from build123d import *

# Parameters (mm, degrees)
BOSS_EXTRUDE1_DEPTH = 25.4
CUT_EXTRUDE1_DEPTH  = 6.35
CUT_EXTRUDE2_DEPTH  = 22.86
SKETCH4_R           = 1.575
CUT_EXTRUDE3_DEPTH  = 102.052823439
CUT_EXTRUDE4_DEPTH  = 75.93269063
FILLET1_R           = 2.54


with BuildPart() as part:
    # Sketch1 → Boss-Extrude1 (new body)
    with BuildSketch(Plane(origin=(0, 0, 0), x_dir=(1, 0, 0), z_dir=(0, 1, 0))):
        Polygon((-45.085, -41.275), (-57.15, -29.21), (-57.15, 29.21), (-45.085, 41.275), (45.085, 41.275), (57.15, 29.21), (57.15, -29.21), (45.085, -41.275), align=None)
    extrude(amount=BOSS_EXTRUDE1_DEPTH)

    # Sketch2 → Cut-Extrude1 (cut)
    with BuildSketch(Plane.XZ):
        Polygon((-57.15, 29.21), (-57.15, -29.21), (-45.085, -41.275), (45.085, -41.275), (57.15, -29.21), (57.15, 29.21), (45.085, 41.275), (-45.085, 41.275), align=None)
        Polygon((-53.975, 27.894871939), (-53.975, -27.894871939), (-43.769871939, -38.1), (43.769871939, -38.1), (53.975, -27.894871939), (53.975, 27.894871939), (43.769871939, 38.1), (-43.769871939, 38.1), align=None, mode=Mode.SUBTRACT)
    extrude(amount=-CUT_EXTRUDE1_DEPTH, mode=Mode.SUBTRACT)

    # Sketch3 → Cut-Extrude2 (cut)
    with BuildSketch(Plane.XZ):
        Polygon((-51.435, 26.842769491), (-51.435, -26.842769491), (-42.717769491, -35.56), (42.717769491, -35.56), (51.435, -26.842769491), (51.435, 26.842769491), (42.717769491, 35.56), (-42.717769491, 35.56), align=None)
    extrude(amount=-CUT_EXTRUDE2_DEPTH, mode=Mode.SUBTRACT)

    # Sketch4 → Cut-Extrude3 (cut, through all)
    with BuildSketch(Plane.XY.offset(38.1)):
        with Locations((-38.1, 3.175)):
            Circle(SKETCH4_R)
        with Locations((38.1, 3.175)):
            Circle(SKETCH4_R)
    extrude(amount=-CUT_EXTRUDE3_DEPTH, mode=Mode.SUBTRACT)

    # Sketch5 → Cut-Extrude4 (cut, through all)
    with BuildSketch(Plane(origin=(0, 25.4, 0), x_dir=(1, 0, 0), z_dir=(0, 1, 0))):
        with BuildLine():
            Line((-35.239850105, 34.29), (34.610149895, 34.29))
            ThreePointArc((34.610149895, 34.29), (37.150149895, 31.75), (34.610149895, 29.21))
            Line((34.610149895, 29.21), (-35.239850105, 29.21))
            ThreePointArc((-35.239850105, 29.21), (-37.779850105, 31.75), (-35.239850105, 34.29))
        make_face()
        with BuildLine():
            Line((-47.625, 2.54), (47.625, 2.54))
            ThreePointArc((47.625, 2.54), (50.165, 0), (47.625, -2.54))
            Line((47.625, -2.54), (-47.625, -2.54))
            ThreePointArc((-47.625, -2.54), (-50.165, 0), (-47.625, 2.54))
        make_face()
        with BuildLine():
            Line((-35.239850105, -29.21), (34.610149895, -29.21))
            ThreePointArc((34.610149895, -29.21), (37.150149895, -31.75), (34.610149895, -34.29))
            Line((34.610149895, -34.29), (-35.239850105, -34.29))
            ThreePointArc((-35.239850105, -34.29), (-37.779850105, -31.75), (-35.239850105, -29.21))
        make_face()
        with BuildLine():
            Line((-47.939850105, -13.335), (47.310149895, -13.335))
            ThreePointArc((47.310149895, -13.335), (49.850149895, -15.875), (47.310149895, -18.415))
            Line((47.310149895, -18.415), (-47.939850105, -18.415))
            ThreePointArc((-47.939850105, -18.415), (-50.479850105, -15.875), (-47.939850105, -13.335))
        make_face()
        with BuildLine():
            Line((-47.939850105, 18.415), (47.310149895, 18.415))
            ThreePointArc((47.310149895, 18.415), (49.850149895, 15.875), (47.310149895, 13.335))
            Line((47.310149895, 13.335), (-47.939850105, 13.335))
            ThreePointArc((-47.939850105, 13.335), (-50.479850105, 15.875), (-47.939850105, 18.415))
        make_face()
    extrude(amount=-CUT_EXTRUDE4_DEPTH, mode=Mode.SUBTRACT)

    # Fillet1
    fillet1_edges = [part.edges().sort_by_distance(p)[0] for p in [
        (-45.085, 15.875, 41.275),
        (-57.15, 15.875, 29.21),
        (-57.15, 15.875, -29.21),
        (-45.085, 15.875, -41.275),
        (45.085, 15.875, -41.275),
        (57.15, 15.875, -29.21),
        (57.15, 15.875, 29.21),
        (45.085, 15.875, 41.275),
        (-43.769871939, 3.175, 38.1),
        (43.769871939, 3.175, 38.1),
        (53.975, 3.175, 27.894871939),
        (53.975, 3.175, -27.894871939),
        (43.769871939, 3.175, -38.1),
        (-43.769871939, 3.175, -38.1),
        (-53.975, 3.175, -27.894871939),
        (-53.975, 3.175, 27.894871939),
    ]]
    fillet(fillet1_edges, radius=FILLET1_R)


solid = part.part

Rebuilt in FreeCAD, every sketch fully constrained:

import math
import FreeCAD as App
import Part
import Sketcher
Q = App.Units.Quantity


def edges_at(feature, points):
    """Names of the edges that pass closest to the given points."""
    edges = feature.Shape.Edges
    near = lambda p: min(range(len(edges)), key=lambda i: edges[i].distToShape(Part.Vertex(*p))[0])
    return sorted({f"Edge{near(p) + 1}" for p in points})


def add_polygon(sketch, points):
    """Adds a closed chain of lines whose ends are joined by coincident constraints."""
    first, n = sketch.GeometryCount, len(points)
    for a, b in zip(points, points[1:] + points[:1]):
        sketch.addGeometry(Part.LineSegment(App.Vector(*a, 0), App.Vector(*b, 0)), False)
    for i in range(n):
        sketch.addConstraint(Sketcher.Constraint("Coincident", first + i, 2, first + (i + 1) % n, 1))

doc = App.newDocument("Part")
body = doc.addObject("PartDesign::Body", "Body")

# Sketch on XZ plane
sketch1 = body.newObject("Sketcher::SketchObject", "Sketch")
sketch1.AttachmentSupport = (doc.getObject("XZ_Plane"), [""])
sketch1.MapMode = "FlatFace"
add_polygon(sketch1, [(-57.15, 29.21), (-45.085, 41.275), (45.085, 41.275), (57.15, 29.21), (57.15, -29.21), (45.085, -41.275), (-45.085, -41.275), (-57.15, -29.21)])  # lines 0-7
sketch1.addConstraint(Sketcher.Constraint("Horizontal", 1))
sketch1.addConstraint(Sketcher.Constraint("Vertical", 3))
sketch1.addConstraint(Sketcher.Constraint("Horizontal", 5))
sketch1.addConstraint(Sketcher.Constraint("Vertical", 7))
sketch1.addConstraint(Sketcher.Constraint("Symmetric", 0, 2, 4, 2, -1, 1))
sketch1.addConstraint(Sketcher.Constraint("Symmetric", 2, 2, 6, 2, -1, 1))
sketch1.addConstraint(Sketcher.Constraint("Perpendicular", 0, 2))
sketch1.addConstraint(Sketcher.Constraint("Perpendicular", 2, 4))
sketch1.addConstraint(Sketcher.Constraint("Perpendicular", 4, 6))
sketch1.addConstraint(Sketcher.Constraint("Horizontal", 3, 2, 6, 2))
sketch1.addConstraint(Sketcher.Constraint("Vertical", 1, 2, 4, 2))
sketch1.addConstraint(Sketcher.Constraint("DistanceY", 3, 2, 3, 1, Q("2.3 in")))
sketch1.addConstraint(Sketcher.Constraint("DistanceX", 1, 1, 1, 2, Q("3.55 in")))
sketch1.addConstraint(Sketcher.Constraint("DistanceX", 6, 2, 3, 2, Q("4.5 in")))
pad1 = body.newObject("PartDesign::Pad", "Pad")
pad1.Profile = sketch1
pad1.Length = Q("1 in")
pad1.Reversed = True

# Sketch on XZ plane
sketch2 = body.newObject("Sketcher::SketchObject", "Sketch001")
sketch2.AttachmentSupport = (doc.getObject("XZ_Plane"), [""])
sketch2.MapMode = "FlatFace"
add_polygon(sketch2, [(-57.15, 29.21), (-57.15, -29.21), (-45.085, -41.275), (45.085, -41.275), (57.15, -29.21), (57.15, 29.21), (45.085, 41.275), (-45.085, 41.275)])  # lines 0-7
add_polygon(sketch2, [(-53.975, -27.894872), (-53.975, 27.894872), (-43.769872, 38.1), (43.769872, 38.1), (53.975, 27.894872), (53.975, -27.894872), (43.769872, -38.1), (-43.769872, -38.1)])  # lines 8-15
sketch2.addConstraint(Sketcher.Constraint("Vertical", 0))
sketch2.addConstraint(Sketcher.Constraint("Horizontal", 2))
sketch2.addConstraint(Sketcher.Constraint("Vertical", 4))
sketch2.addConstraint(Sketcher.Constraint("Horizontal", 6))
sketch2.addConstraint(Sketcher.Constraint("Vertical", 8))
sketch2.addConstraint(Sketcher.Constraint("Horizontal", 10))
sketch2.addConstraint(Sketcher.Constraint("Vertical", 12))
sketch2.addConstraint(Sketcher.Constraint("Horizontal", 14))
sketch2.addConstraint(Sketcher.Constraint("Symmetric", 0, 2, 4, 2, -1, 1))
sketch2.addConstraint(Sketcher.Constraint("Symmetric", 1, 2, 5, 2, -1, 1))
sketch2.addConstraint(Sketcher.Constraint("Symmetric", 8, 2, 12, 2, -1, 1))
sketch2.addConstraint(Sketcher.Constraint("Symmetric", 9, 2, 13, 2, -1, 1))
sketch2.addConstraint(Sketcher.Constraint("Perpendicular", 1, 3))
sketch2.addConstraint(Sketcher.Constraint("Perpendicular", 5, 7))
sketch2.addConstraint(Sketcher.Constraint("Parallel", 7, 9))
sketch2.addConstraint(Sketcher.Constraint("Perpendicular", 9, 11))
sketch2.addConstraint(Sketcher.Constraint("Perpendicular", 13, 15))
sketch2.addConstraint(Sketcher.Constraint("Horizontal", 0, 2, 3, 2))
sketch2.addConstraint(Sketcher.Constraint("Horizontal", 4, 2, 7, 2))
sketch2.addConstraint(Sketcher.Constraint("Horizontal", 8, 2, 11, 2))
sketch2.addConstraint(Sketcher.Constraint("Horizontal", 12, 2, 15, 2))
sketch2.addConstraint(Sketcher.Constraint("Vertical", 2, 2, 5, 2))
sketch2.addConstraint(Sketcher.Constraint("DistanceY", 0, 2, 0, 1, Q("2.3 in")))
sketch2.addConstraint(Sketcher.Constraint("DistanceY", 14, 2, 9, 2, Q("3 in")))
sketch2.addConstraint(Sketcher.Constraint("DistanceX", 2, 1, 2, 2, Q("3.55 in")))
sketch2.addConstraint(Sketcher.Constraint("DistanceX", 0, 2, 3, 2, Q("4.5 in")))
sketch2.addConstraint(Sketcher.Constraint("DistanceX", 8, 2, 5, 2, Q("3.9 in")))
sketch2.addConstraint(Sketcher.Constraint("Distance", 9, Q("14.432231 mm")))
pocket1 = body.newObject("PartDesign::Pocket", "Pocket")
pocket1.Profile = sketch2
pocket1.Length = Q("0.25 in")

# Sketch on XZ plane
sketch3 = body.newObject("Sketcher::SketchObject", "Sketch002")
sketch3.AttachmentSupport = (doc.getObject("XZ_Plane"), [""])
sketch3.MapMode = "FlatFace"
add_polygon(sketch3, [(-51.435, 26.842769), (-51.435, -26.842769), (-42.717769, -35.56), (42.717769, -35.56), (51.435, -26.842769), (51.435, 26.842769), (42.717769, 35.56), (-42.717769, 35.56)])  # lines 0-7
sketch3.addConstraint(Sketcher.Constraint("Vertical", 0))
sketch3.addConstraint(Sketcher.Constraint("Horizontal", 2))
sketch3.addConstraint(Sketcher.Constraint("Vertical", 4))
sketch3.addConstraint(Sketcher.Constraint("Horizontal", 6))
sketch3.addConstraint(Sketcher.Constraint("Symmetric", 0, 2, 4, 2, -1, 1))
sketch3.addConstraint(Sketcher.Constraint("Symmetric", 1, 2, 5, 2, -1, 1))
sketch3.addConstraint(Sketcher.Constraint("Perpendicular", 1, 3))
sketch3.addConstraint(Sketcher.Constraint("Perpendicular", 5, 7))
sketch3.addConstraint(Sketcher.Constraint("Horizontal", 0, 2, 3, 2))
sketch3.addConstraint(Sketcher.Constraint("Horizontal", 4, 2, 7, 2))
sketch3.addConstraint(Sketcher.Constraint("Vertical", 2, 2, 5, 2))
sketch3.addConstraint(Sketcher.Constraint("DistanceY", 1, 2, -1, 1, Q("1.4 in")))
sketch3.addConstraint(Sketcher.Constraint("DistanceX", 0, 2, 3, 2, Q("4.05 in")))
sketch3.addConstraint(Sketcher.Constraint("DistanceX", 2, 1, 2, 2, Q("85.435539 mm")))
pocket2 = body.newObject("PartDesign::Pocket", "Pocket001")
pocket2.Profile = sketch3
pocket2.Length = Q("0.9 in")

# Sketch on XY plane
sketch4 = body.newObject("Sketcher::SketchObject", "Sketch003")
sketch4.AttachmentSupport = (doc.getObject("XY_Plane"), [""])
sketch4.MapMode = "FlatFace"
sketch4.AttachmentOffset = App.Placement(App.Vector(0, 0, 1.5 * 25.4), App.Rotation())
sketch4.addGeometry(Part.Circle(App.Vector(-38.1, 3.175, 0), App.Vector(0, 0, 1), 1.575), False)
sketch4.addGeometry(Part.Circle(App.Vector(38.1, 3.175, 0), App.Vector(0, 0, 1), 1.575), False)
sketch4.addConstraint(Sketcher.Constraint("Equal", 0, 1))
sketch4.addConstraint(Sketcher.Constraint("Symmetric", 0, 3, 1, 3, -2))
sketch4.addConstraint(Sketcher.Constraint("DistanceX", 0, 3, 1, 3, Q("3 in")))
sketch4.addConstraint(Sketcher.Constraint("Diameter", 0, Q("3.15 mm")))
sketch4.addConstraint(Sketcher.Constraint("DistanceY", -1, 1, 0, 3, Q("0.125 in")))
pocket3 = body.newObject("PartDesign::Pocket", "Pocket002")
pocket3.Profile = sketch4
pocket3.Type = "ThroughAll"

# Sketch on XZ plane
sketch5 = body.newObject("Sketcher::SketchObject", "Sketch004")
sketch5.AttachmentSupport = (doc.getObject("XZ_Plane"), [""])
sketch5.MapMode = "FlatFace"
sketch5.AttachmentOffset = App.Placement(App.Vector(0, 0, -1 * 25.4), App.Rotation())
sketch5.addGeometry(Part.LineSegment(App.Vector(34.61015, -34.29, 0), App.Vector(-35.23985, -34.29, 0)), False)
sketch5.addGeometry(Part.ArcOfCircle(Part.Circle(App.Vector(-35.23985, -31.75, 0), App.Vector(0, 0, 1), 2.54), math.radians(90), math.radians(270)), False)
sketch5.addGeometry(Part.LineSegment(App.Vector(-35.23985, -29.21, 0), App.Vector(34.61015, -29.21, 0)), False)
sketch5.addGeometry(Part.ArcOfCircle(Part.Circle(App.Vector(34.61015, -31.75, 0), App.Vector(0, 0, 1), 2.54), math.radians(-90), math.radians(90)), False)
sketch5.addGeometry(Part.LineSegment(App.Vector(47.625, -2.54, 0), App.Vector(-47.625, -2.54, 0)), False)
sketch5.addGeometry(Part.ArcOfCircle(Part.Circle(App.Vector(-47.625, 0, 0), App.Vector(0, 0, 1), 2.54), math.radians(90), math.radians(270)), False)
sketch5.addGeometry(Part.LineSegment(App.Vector(-47.625, 2.54, 0), App.Vector(47.625, 2.54, 0)), False)
sketch5.addGeometry(Part.ArcOfCircle(Part.Circle(App.Vector(47.625, 0, 0), App.Vector(0, 0, 1), 2.54), math.radians(-90), math.radians(90)), False)
sketch5.addGeometry(Part.LineSegment(App.Vector(34.61015, 29.21, 0), App.Vector(-35.23985, 29.21, 0)), False)
sketch5.addGeometry(Part.ArcOfCircle(Part.Circle(App.Vector(-35.23985, 31.75, 0), App.Vector(0, 0, 1), 2.54), math.radians(90), math.radians(270)), False)
sketch5.addGeometry(Part.LineSegment(App.Vector(-35.23985, 34.29, 0), App.Vector(34.61015, 34.29, 0)), False)
sketch5.addGeometry(Part.ArcOfCircle(Part.Circle(App.Vector(34.61015, 31.75, 0), App.Vector(0, 0, 1), 2.54), math.radians(-90), math.radians(90)), False)
sketch5.addGeometry(Part.LineSegment(App.Vector(47.31015, 13.335, 0), App.Vector(-47.93985, 13.335, 0)), False)
sketch5.addGeometry(Part.ArcOfCircle(Part.Circle(App.Vector(-47.93985, 15.875, 0), App.Vector(0, 0, 1), 2.54), math.radians(90), math.radians(270)), False)
sketch5.addGeometry(Part.LineSegment(App.Vector(-47.93985, 18.415, 0), App.Vector(47.31015, 18.415, 0)), False)
sketch5.addGeometry(Part.ArcOfCircle(Part.Circle(App.Vector(47.31015, 15.875, 0), App.Vector(0, 0, 1), 2.54), math.radians(-90), math.radians(90)), False)
sketch5.addGeometry(Part.LineSegment(App.Vector(47.31015, -18.415, 0), App.Vector(-47.93985, -18.415, 0)), False)
sketch5.addGeometry(Part.ArcOfCircle(Part.Circle(App.Vector(-47.93985, -15.875, 0), App.Vector(0, 0, 1), 2.54), math.radians(90), math.radians(270)), False)
sketch5.addGeometry(Part.LineSegment(App.Vector(-47.93985, -13.335, 0), App.Vector(47.31015, -13.335, 0)), False)
sketch5.addGeometry(Part.ArcOfCircle(Part.Circle(App.Vector(47.31015, -15.875, 0), App.Vector(0, 0, 1), 2.54), math.radians(-90), math.radians(90)), False)
sketch5.addConstraint(Sketcher.Constraint("Tangent", 0, 2, 1, 2))
sketch5.addConstraint(Sketcher.Constraint("Tangent", 1, 1, 2, 1))
sketch5.addConstraint(Sketcher.Constraint("Tangent", 2, 2, 3, 2))
sketch5.addConstraint(Sketcher.Constraint("Tangent", 3, 1, 0, 1))
sketch5.addConstraint(Sketcher.Constraint("Tangent", 4, 2, 5, 2))
sketch5.addConstraint(Sketcher.Constraint("Tangent", 5, 1, 6, 1))
sketch5.addConstraint(Sketcher.Constraint("Tangent", 6, 2, 7, 2))
sketch5.addConstraint(Sketcher.Constraint("Tangent", 7, 1, 4, 1))
sketch5.addConstraint(Sketcher.Constraint("Tangent", 8, 2, 9, 2))
sketch5.addConstraint(Sketcher.Constraint("Tangent", 9, 1, 10, 1))
sketch5.addConstraint(Sketcher.Constraint("Tangent", 10, 2, 11, 2))
sketch5.addConstraint(Sketcher.Constraint("Tangent", 11, 1, 8, 1))
sketch5.addConstraint(Sketcher.Constraint("Tangent", 12, 2, 13, 2))
sketch5.addConstraint(Sketcher.Constraint("Tangent", 13, 1, 14, 1))
sketch5.addConstraint(Sketcher.Constraint("Tangent", 14, 2, 15, 2))
sketch5.addConstraint(Sketcher.Constraint("Tangent", 15, 1, 12, 1))
sketch5.addConstraint(Sketcher.Constraint("Tangent", 16, 2, 17, 2))
sketch5.addConstraint(Sketcher.Constraint("Tangent", 17, 1, 18, 1))
sketch5.addConstraint(Sketcher.Constraint("Tangent", 18, 2, 19, 2))
sketch5.addConstraint(Sketcher.Constraint("Tangent", 19, 1, 16, 1))
sketch5.addConstraint(Sketcher.Constraint("Horizontal", 0))
sketch5.addConstraint(Sketcher.Constraint("Horizontal", 2))
sketch5.addConstraint(Sketcher.Constraint("Horizontal", 4))
sketch5.addConstraint(Sketcher.Constraint("Horizontal", 6))
sketch5.addConstraint(Sketcher.Constraint("Horizontal", 8))
sketch5.addConstraint(Sketcher.Constraint("Horizontal", 10))
sketch5.addConstraint(Sketcher.Constraint("Horizontal", 12))
sketch5.addConstraint(Sketcher.Constraint("Horizontal", 14))
sketch5.addConstraint(Sketcher.Constraint("Horizontal", 16))
sketch5.addConstraint(Sketcher.Constraint("Horizontal", 18))
sketch5.addConstraint(Sketcher.Constraint("Equal", 3, 5))
sketch5.addConstraint(Sketcher.Constraint("Equal", 7, 9))
sketch5.addConstraint(Sketcher.Constraint("Equal", 11, 13))
sketch5.addConstraint(Sketcher.Constraint("Equal", 15, 17))
sketch5.addConstraint(Sketcher.Constraint("Symmetric", 5, 3, 7, 3, -1, 1))
sketch5.addConstraint(Sketcher.Constraint("Symmetric", 1, 3, 9, 3, -1))
sketch5.addConstraint(Sketcher.Constraint("Symmetric", 13, 3, 17, 3, -1))
sketch5.addConstraint(Sketcher.Constraint("Vertical", 3, 3, 11, 3))
sketch5.addConstraint(Sketcher.Constraint("Vertical", 15, 3, 19, 3))
sketch5.addConstraint(Sketcher.Constraint("Equal", 6, 12))
sketch5.addConstraint(Sketcher.Constraint("Radius", 1, Q("0.1 in")))
sketch5.addConstraint(Sketcher.Constraint("DistanceX", 0, 2, 0, 1, Q("2.75 in")))
sketch5.addConstraint(Sketcher.Constraint("DistanceX", 4, 2, 4, 1, Q("3.75 in")))
sketch5.addConstraint(Sketcher.Constraint("DistanceY", 1, 3, 9, 3, Q("2.5 in")))
sketch5.addConstraint(Sketcher.Constraint("DistanceX", 13, 3, 9, 3, Q("0.5 in")))
sketch5.addConstraint(Sketcher.Constraint("DistanceY", 17, 3, 13, 3, Q("1.25 in")))
sketch5.addConstraint(Sketcher.Constraint("DistanceX", 1, 3, -1, 1, Q("35.23985 mm")))
pocket4 = body.newObject("PartDesign::Pocket", "Pocket003")
pocket4.Profile = sketch5
pocket4.Type = "ThroughAll"
pocket4.Reversed = True
doc.recompute()

fillet = body.newObject("PartDesign::Fillet", "Fillet")
fillet.Base = (pocket4, edges_at(pocket4, [
    (-45.085, 15.875, 41.275),
    (-57.15, 15.875, 29.21),
    (-57.15, 15.875, -29.21),
    (-45.085, 15.875, -41.275),
    (45.085, 15.875, -41.275),
    (57.15, 15.875, -29.21),
    (57.15, 15.875, 29.21),
    (45.085, 15.875, 41.275),
    (-43.77, 3.175, 38.1),
    (43.77, 3.175, 38.1),
    (53.975, 3.175, 27.895),
    (53.975, 3.175, -27.895),
    (43.77, 3.175, -38.1),
    (-43.77, 3.175, -38.1),
    (-53.975, 3.175, -27.895),
    (-53.975, 3.175, 27.895),
]))
fillet.Radius = Q("0.1 in")

doc.recompute()
